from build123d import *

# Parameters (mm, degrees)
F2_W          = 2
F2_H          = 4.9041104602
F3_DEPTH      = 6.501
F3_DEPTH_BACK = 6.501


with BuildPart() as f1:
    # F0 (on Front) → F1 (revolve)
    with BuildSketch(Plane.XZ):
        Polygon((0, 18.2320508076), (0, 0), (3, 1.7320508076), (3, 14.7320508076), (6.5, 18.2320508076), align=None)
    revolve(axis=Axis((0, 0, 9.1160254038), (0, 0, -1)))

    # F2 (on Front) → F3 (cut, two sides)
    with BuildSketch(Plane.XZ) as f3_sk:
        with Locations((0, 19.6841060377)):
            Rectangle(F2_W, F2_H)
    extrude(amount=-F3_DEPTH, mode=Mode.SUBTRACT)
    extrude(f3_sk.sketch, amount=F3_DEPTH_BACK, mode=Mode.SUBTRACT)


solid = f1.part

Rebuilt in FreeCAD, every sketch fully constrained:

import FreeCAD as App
import Part
import Sketcher
from FreeCAD import Vector
Q = App.Units.Quantity


def add_polygon(sketch, points):
    """Adds a closed chain of lines whose ends are joined by coincident constraints."""
    first, n = sketch.GeometryCount, len(points)
    for a, b in zip(points, points[1:] + points[:1]):
        sketch.addGeometry(Part.LineSegment(App.Vector(*a, 0), App.Vector(*b, 0)), False)
    for i in range(n):
        sketch.addConstraint(Sketcher.Constraint("Coincident", first + i, 2, first + (i + 1) % n, 1))

doc = App.newDocument("Part")
body = doc.addObject("PartDesign::Body", "Body")

# Sketch on XZ plane
sketch1 = doc.addObject("Sketcher::SketchObject", "Sketch")
body.addObject(sketch1)
sketch1.AttachmentSupport = (doc.XZ_Plane, [""])
sketch1.MapMode = "FlatFace"
add_polygon(sketch1, [(0, 18.2), (0, 0), (3, 1.7), (3, 14.7), (6.5, 18.2)])  # lines 0-4
sketch1.addConstraint([
    Sketcher.Constraint("Vertical", 0),
    Sketcher.Constraint("Vertical", 2),
    Sketcher.Constraint("Horizontal", 4),
    Sketcher.Constraint("Coincident", 0, 2, -1, 1),
    Sketcher.Constraint("DistanceY", 2, 1, 2, 2, Q("13 mm")),
    Sketcher.Constraint("Angle", 1, Q("30 deg")),
    Sketcher.Constraint("Angle", 3, Q("45 deg")),
    Sketcher.Constraint("DistanceX", 4, 2, 4, 1, Q("6.5 mm")),
    Sketcher.Constraint("DistanceX", -1, 1, 1, 2, Q("3 mm")),
])
revolution = doc.addObject("PartDesign::Revolution", "Revolution")
body.addObject(revolution)
revolution.Profile = sketch1
revolution.ReferenceAxis = (sketch1, ["V_Axis"])
revolution.Angle = 360

# Sketch on XZ plane
sketch2 = doc.addObject("Sketcher::SketchObject", "Sketch001")
body.addObject(sketch2)
sketch2.AttachmentSupport = (doc.XZ_Plane, [""])
sketch2.MapMode = "FlatFace"
add_polygon(sketch2, [(-1, 22.1), (-1, 17.2), (1, 17.2), (1, 22.1)])  # lines 0-3
sketch2.addConstraint([
    Sketcher.Constraint("Vertical", 0),
    Sketcher.Constraint("Horizontal", 1),
    Sketcher.Constraint("Vertical", 2),
    Sketcher.Constraint("Horizontal", 3),
    Sketcher.Constraint("DistanceX", 1, 1, 1, 2, Q("2 mm")),
    Sketcher.Constraint("DistanceX", 0, 2, -1, 1, Q("1 mm")),
    Sketcher.Constraint("DistanceY", 0, 2, 0, 1, Q("4.90411 mm")),
    Sketcher.Constraint("DistanceY", -1, 1, 0, 2, Q("17.232051 mm")),
])
pocket1 = doc.addObject("PartDesign::Pocket", "Pocket")
body.addObject(pocket1)
pocket1.Profile = sketch2
pocket1.Type = "ThroughAll"
pocket1.Midplane = True

doc.recompute()
